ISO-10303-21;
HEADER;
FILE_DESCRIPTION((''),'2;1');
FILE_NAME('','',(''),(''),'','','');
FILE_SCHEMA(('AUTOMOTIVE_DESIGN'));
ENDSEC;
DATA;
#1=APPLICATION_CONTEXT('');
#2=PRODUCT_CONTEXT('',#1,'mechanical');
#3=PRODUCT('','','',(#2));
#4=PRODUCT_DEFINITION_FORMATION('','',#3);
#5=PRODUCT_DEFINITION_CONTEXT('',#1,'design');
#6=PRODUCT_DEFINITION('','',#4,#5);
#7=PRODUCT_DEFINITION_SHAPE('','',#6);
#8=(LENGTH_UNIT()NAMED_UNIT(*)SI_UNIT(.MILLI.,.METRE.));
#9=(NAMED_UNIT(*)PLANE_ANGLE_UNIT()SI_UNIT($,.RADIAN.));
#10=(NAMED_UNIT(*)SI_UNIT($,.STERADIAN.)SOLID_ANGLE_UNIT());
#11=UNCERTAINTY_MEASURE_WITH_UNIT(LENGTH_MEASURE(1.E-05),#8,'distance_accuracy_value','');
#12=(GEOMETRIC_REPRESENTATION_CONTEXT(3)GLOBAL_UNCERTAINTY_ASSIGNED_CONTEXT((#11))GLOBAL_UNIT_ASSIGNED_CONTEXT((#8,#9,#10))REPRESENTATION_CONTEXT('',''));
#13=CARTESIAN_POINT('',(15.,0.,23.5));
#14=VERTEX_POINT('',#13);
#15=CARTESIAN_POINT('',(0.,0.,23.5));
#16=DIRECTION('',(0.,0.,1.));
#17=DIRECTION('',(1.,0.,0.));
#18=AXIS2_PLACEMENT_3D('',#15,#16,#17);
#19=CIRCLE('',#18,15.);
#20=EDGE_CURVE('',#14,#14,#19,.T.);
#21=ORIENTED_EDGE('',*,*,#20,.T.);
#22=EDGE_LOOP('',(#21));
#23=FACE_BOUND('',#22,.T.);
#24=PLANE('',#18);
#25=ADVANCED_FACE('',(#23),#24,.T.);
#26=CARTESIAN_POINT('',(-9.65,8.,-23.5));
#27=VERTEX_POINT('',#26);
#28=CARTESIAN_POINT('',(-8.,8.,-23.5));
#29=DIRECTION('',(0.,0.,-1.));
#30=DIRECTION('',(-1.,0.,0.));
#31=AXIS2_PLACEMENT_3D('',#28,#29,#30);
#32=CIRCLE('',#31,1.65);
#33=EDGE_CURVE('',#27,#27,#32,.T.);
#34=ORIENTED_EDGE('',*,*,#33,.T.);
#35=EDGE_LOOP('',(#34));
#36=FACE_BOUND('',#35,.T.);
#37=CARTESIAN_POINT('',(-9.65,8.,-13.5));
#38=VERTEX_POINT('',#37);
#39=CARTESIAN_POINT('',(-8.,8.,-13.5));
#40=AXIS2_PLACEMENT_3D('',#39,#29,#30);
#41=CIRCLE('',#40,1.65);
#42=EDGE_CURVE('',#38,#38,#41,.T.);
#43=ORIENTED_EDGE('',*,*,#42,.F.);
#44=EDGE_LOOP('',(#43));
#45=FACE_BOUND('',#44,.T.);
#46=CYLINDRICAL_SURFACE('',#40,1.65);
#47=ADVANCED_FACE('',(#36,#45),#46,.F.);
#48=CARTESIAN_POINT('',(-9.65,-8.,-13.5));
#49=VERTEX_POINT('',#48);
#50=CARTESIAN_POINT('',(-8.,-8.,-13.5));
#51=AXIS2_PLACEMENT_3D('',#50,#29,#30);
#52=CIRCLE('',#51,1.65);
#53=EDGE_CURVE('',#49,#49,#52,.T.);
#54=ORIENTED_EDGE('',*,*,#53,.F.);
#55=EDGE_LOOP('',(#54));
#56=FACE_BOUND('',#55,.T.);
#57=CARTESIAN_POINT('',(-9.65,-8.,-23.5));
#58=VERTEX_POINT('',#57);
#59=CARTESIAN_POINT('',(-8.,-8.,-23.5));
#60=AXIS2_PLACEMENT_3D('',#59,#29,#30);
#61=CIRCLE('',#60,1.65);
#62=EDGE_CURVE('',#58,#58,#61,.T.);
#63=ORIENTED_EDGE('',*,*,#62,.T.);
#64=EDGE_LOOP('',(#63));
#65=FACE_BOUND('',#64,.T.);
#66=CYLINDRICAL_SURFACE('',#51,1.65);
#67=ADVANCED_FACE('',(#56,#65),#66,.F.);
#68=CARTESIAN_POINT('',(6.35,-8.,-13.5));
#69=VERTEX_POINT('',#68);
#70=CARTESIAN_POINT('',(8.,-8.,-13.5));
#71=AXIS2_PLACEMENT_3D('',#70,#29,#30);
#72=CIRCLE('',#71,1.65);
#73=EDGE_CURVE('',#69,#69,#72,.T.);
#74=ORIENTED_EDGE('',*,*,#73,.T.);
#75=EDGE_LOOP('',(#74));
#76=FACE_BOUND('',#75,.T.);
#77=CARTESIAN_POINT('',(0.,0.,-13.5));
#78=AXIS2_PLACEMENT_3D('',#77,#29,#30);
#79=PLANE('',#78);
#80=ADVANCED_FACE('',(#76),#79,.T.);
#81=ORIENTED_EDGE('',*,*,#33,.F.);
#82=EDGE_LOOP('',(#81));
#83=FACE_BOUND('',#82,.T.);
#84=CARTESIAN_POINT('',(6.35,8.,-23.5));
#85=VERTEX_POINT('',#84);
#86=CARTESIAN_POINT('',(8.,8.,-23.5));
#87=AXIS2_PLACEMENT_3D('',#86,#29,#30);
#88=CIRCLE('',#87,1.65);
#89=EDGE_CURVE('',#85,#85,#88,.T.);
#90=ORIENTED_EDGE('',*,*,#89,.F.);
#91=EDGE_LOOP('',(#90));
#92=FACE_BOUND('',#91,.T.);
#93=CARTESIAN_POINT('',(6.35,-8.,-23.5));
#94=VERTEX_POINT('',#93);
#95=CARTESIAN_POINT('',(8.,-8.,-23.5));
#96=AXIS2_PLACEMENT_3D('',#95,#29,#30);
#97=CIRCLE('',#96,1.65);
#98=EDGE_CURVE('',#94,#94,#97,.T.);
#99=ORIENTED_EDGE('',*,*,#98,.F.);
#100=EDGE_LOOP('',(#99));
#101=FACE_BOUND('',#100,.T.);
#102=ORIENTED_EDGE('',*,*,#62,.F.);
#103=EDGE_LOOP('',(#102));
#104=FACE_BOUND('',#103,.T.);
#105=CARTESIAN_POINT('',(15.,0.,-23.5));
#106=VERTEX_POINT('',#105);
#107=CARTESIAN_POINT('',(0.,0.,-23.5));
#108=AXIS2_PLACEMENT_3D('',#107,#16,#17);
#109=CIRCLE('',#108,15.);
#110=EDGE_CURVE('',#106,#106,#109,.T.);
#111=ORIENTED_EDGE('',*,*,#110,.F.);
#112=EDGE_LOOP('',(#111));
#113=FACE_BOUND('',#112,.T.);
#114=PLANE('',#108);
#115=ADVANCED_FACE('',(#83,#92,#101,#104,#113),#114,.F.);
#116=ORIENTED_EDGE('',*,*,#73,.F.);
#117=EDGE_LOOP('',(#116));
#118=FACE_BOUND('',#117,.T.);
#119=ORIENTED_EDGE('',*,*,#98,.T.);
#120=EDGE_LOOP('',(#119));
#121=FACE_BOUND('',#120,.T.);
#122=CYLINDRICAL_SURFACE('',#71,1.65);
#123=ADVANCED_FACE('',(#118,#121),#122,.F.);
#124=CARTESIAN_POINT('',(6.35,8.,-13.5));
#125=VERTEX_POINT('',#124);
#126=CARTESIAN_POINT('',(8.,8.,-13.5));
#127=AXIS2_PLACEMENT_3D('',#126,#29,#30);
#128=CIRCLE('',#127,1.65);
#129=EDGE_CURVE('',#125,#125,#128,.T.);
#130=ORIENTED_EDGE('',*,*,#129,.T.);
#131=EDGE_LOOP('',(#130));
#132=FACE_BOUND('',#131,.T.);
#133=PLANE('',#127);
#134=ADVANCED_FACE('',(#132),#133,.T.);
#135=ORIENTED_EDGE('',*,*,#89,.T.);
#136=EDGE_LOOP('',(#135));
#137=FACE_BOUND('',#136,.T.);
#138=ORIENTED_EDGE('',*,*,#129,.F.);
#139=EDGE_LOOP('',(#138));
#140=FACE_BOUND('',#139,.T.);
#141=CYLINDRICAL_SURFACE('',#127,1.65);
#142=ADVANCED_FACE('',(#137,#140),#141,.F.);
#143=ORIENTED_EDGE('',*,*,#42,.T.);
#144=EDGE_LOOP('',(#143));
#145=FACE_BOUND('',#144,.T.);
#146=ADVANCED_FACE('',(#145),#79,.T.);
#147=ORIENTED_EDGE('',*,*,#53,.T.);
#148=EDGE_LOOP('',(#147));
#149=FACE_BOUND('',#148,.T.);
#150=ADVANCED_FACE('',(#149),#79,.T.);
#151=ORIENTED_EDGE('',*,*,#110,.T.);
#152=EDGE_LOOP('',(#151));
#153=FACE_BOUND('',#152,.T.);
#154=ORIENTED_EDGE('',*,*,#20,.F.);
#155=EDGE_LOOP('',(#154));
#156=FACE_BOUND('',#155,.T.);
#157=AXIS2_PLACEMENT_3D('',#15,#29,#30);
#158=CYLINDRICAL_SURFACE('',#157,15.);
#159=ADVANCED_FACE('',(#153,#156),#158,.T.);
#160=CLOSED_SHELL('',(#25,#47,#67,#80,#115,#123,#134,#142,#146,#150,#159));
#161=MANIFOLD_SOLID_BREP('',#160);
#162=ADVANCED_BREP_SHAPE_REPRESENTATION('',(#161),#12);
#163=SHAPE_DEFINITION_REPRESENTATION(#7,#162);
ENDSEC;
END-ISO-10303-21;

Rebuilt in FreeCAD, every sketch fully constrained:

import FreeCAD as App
import Part
import Sketcher

V = App.Vector
Q = App.Units.Quantity

doc = App.newDocument("Part")
body = doc.addObject("PartDesign::Body", "Body")

# Sketch on XY plane
sketch1 = doc.addObject("Sketcher::SketchObject", "Sketch")
body.addObject(sketch1)
sketch1.AttachmentSupport = (doc.XY_Plane, [""])
sketch1.MapMode = "FlatFace"
sketch1.addGeometry(Part.Circle(V(0, 0, 0), V(0, 0, 1), 15), False)
sketch1.addConstraint([
    Sketcher.Constraint("Coincident", 0, 3, -1, 1),
    Sketcher.Constraint("Diameter", 0, Q("30 mm")),
])
pad1 = doc.addObject("PartDesign::Pad", "Pad")
body.addObject(pad1)
pad1.Profile = sketch1
pad1.Length = 47
pad1.Midplane = True

# Sketch on XY plane
sketch2 = doc.addObject("Sketcher::SketchObject", "Sketch001")
body.addObject(sketch2)
sketch2.AttachmentSupport = (doc.XY_Plane, [""])
sketch2.MapMode = "FlatFace"
sketch2.AttachmentOffset = App.Placement(V(0, 0, -23.5), App.Rotation())
sketch2.addGeometry([
    Part.Circle(V(-8, 8, 0), V(0, 0, 1), 1.6),
    Part.Circle(V(-8, -8, 0), V(0, 0, 1), 1.6),
    Part.Circle(V(8, -8, 0), V(0, 0, 1), 1.6),
    Part.Circle(V(8, 8, 0), V(0, 0, 1), 1.6),
], False)
sketch2.addConstraint([
    Sketcher.Constraint("Equal", 0, 1),
    Sketcher.Constraint("Equal", 1, 2),
    Sketcher.Constraint("Equal", 2, 3),
    Sketcher.Constraint("Symmetric", 0, 3, 2, 3, -1, 1),
    Sketcher.Constraint("Symmetric", 1, 3, 3, 3, -1, 1),
    Sketcher.Constraint("Symmetric", 1, 3, 2, 3, -2),
    Sketcher.Constraint("Diameter", 0, Q("3.3 mm")),
    Sketcher.Constraint("DistanceX", 0, 3, -1, 1, Q("8 mm")),
    Sketcher.Constraint("DistanceY", -1, 1, 0, 3, Q("8 mm")),
])
pocket1 = doc.addObject("PartDesign::Pocket", "Pocket")
body.addObject(pocket1)
pocket1.Profile = sketch2
pocket1.Length = 10
pocket1.Reversed = True

doc.recompute()
